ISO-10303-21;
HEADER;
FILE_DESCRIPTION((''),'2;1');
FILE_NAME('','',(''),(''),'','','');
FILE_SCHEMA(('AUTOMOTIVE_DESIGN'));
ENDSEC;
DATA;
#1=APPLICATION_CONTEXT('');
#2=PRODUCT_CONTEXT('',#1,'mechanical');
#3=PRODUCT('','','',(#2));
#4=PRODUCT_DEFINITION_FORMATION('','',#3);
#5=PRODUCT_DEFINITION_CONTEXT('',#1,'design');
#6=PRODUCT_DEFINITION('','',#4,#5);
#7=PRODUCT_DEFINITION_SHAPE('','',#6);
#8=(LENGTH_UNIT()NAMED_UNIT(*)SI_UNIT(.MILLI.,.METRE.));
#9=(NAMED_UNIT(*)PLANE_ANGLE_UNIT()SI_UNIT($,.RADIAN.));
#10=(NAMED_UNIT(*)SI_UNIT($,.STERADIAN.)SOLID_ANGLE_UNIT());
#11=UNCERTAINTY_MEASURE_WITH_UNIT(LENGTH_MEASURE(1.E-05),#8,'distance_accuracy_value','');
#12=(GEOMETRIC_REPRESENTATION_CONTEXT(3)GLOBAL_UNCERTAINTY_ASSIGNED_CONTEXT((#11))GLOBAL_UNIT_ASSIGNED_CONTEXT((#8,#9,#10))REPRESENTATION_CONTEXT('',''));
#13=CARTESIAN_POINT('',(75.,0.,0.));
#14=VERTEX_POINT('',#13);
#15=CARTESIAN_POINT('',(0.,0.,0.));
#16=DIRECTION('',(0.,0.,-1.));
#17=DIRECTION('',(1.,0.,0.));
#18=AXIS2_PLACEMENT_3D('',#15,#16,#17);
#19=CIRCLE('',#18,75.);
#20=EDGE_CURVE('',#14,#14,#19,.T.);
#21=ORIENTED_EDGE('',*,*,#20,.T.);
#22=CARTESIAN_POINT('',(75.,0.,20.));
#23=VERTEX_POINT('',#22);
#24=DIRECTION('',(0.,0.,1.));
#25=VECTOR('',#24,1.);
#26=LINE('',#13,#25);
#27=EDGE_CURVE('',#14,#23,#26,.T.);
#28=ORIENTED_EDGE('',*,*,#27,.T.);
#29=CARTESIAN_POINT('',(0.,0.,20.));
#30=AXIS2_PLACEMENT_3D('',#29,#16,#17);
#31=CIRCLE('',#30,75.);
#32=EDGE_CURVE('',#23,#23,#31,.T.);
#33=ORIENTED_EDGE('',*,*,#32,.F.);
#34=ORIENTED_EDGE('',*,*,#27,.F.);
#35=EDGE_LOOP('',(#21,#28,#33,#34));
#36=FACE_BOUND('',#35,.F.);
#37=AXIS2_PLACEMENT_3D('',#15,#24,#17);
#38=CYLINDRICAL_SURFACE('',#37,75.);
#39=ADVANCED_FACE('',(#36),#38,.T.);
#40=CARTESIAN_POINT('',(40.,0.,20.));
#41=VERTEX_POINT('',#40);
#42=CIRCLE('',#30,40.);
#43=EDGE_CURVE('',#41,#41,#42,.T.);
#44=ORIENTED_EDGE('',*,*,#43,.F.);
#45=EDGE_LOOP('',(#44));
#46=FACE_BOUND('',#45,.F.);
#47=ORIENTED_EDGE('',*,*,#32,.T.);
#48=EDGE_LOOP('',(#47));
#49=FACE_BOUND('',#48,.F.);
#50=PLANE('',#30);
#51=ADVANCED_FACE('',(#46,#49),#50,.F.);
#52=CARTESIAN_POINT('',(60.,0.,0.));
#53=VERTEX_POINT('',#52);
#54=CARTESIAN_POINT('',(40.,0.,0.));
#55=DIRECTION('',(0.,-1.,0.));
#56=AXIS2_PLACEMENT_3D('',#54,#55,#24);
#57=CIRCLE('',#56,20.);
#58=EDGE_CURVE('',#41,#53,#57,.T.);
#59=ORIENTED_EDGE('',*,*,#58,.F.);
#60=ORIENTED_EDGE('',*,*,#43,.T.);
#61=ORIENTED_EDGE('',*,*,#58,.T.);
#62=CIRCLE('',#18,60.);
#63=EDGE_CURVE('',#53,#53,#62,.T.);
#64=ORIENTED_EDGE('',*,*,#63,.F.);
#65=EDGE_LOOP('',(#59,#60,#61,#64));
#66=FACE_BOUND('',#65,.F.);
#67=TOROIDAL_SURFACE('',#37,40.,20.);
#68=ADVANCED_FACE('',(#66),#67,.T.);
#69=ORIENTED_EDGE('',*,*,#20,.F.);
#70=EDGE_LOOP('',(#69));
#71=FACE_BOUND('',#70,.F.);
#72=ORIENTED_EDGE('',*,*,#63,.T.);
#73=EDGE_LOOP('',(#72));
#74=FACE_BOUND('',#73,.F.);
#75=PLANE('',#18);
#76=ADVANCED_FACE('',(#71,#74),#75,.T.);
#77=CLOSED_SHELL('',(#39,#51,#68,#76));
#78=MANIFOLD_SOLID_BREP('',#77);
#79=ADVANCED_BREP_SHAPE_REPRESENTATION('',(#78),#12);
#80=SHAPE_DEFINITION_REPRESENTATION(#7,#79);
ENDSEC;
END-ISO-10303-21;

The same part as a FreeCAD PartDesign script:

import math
import FreeCAD as App
import Part
import Sketcher

V = App.Vector

doc = App.newDocument("Part")
body = doc.addObject("PartDesign::Body", "Body")

# Sketch on XZ plane
sketch1 = doc.addObject("Sketcher::SketchObject", "Sketch")
body.addObject(sketch1)
sketch1.AttachmentSupport = (doc.XZ_Plane, [""])
sketch1.MapMode = "FlatFace"
sketch1.addGeometry(Part.ArcOfCircle(Part.Circle(V(40, 0, 0), V(0, 0, 1), 20), math.radians(90), math.radians(360)), False)
sketch1.addGeometry(Part.LineSegment(V(60, 0, 0), V(75, 0, 0)), False)
sketch1.addGeometry(Part.LineSegment(V(75, 0, 0), V(75, 20, 0)), False)
sketch1.addGeometry(Part.LineSegment(V(75, 20, 0), V(40, 20, 0)), False)
sketch1.addConstraint(Sketcher.Constraint("Coincident", 0, 2, 1, 1))
sketch1.addConstraint(Sketcher.Constraint("Coincident", 1, 2, 2, 1))
sketch1.addConstraint(Sketcher.Constraint("Coincident", 2, 2, 3, 1))
sketch1.addConstraint(Sketcher.Constraint("Tangent", 3, 2, 0, 1))
sketch1.addConstraint(Sketcher.Constraint("Horizontal", 1))
sketch1.addConstraint(Sketcher.Constraint("Vertical", 2))
sketch1.addConstraint(Sketcher.Constraint("Horizontal", 3))
sketch1.addConstraint(Sketcher.Constraint("PointOnObject", 0, 3, -1))
sketch1.addConstraint(Sketcher.Constraint("PointOnObject", 0, 2, -1))
sketch1.addConstraint(Sketcher.Constraint("Radius", 0, 20.0))
sketch1.addConstraint(Sketcher.Constraint("DistanceX", 1, 1, 1, 2, 15.0))
sketch1.addConstraint(Sketcher.Constraint("DistanceX", -1, 1, 0, 3, 40.0))
revolution = doc.addObject("PartDesign::Revolution", "Revolution")
body.addObject(revolution)
revolution.Profile = sketch1
revolution.ReferenceAxis = (sketch1, ["V_Axis"])
revolution.Angle = 360

doc.recompute()
